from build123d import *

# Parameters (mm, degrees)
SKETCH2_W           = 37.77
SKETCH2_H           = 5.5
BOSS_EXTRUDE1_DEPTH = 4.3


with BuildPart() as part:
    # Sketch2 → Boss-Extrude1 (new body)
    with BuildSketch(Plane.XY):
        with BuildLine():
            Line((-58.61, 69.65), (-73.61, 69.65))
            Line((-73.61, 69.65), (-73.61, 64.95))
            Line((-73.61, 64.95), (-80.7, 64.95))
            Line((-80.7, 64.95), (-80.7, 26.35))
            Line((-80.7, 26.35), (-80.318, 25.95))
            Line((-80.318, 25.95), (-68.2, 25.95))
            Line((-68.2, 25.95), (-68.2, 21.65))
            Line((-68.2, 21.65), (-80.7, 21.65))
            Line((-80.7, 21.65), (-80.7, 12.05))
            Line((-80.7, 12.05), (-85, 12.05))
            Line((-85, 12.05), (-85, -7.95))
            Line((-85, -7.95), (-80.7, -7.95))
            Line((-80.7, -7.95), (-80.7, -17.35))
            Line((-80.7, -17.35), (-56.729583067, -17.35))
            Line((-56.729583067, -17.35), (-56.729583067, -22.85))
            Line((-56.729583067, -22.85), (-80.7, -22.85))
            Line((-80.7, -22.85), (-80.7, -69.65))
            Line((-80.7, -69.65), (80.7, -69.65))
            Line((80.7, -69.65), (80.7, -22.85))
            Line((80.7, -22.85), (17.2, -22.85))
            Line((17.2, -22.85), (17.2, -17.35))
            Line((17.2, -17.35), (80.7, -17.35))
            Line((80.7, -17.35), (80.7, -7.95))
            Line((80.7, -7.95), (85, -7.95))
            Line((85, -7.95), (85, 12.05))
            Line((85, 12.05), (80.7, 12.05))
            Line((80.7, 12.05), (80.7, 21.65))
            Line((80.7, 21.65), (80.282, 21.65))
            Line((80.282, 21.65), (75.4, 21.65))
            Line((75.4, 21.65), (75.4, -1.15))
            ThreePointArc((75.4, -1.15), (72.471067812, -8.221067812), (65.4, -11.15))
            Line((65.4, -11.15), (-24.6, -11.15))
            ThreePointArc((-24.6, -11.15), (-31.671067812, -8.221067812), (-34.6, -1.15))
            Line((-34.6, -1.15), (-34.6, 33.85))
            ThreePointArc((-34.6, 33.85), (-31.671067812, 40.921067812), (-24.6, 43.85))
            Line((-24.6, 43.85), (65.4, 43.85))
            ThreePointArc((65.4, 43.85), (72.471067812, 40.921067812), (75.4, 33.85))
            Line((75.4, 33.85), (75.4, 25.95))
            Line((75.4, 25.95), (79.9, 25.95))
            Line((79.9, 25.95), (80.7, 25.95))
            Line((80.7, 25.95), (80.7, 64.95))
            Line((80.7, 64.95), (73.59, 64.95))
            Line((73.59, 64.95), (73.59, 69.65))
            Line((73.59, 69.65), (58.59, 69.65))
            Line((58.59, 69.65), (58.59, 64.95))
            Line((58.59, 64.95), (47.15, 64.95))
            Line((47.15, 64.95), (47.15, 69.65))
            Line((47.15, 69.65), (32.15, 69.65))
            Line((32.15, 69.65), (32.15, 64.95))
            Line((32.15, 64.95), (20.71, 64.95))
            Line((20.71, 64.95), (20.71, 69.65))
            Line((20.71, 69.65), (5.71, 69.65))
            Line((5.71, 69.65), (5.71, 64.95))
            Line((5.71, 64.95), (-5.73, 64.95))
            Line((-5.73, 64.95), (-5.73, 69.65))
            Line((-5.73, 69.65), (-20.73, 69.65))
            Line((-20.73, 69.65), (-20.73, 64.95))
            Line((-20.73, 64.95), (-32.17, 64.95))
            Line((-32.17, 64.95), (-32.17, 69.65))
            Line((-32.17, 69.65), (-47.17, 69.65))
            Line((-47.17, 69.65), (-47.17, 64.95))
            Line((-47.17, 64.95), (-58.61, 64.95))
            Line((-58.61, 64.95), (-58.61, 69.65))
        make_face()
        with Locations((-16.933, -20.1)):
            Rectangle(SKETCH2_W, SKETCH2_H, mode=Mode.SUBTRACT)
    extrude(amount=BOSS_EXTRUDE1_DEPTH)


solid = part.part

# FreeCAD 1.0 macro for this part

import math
import FreeCAD as App
import Part
import Sketcher
Q = App.Units.Quantity

doc = App.newDocument("Part")
body = doc.addObject("PartDesign::Body", "Body")

# Sketch on XY plane
sketch1 = body.newObject("Sketcher::SketchObject", "Sketch")
sketch1.AttachmentSupport = (doc.getObject("XY_Plane"), [""])
sketch1.MapMode = "FlatFace"
sketch1.addGeometry([
    Part.LineSegment(App.Vector(-58.61, 69.65, 0), App.Vector(-73.61, 69.65, 0)),  # 0
    Part.LineSegment(App.Vector(-73.61, 69.65, 0), App.Vector(-73.61, 64.95, 0)),  # 1
    Part.LineSegment(App.Vector(-73.61, 64.95, 0), App.Vector(-80.7, 64.95, 0)),  # 2
    Part.LineSegment(App.Vector(-80.7, 64.95, 0), App.Vector(-80.7, 26.35, 0)),  # 3
    Part.LineSegment(App.Vector(-80.7, 26.35, 0), App.Vector(-80.318, 25.95, 0)),  # 4
    Part.LineSegment(App.Vector(-80.318, 25.95, 0), App.Vector(-68.2, 25.95, 0)),  # 5
    Part.LineSegment(App.Vector(-68.2, 25.95, 0), App.Vector(-68.2, 21.65, 0)),  # 6
    Part.LineSegment(App.Vector(-68.2, 21.65, 0), App.Vector(-80.7, 21.65, 0)),  # 7
    Part.LineSegment(App.Vector(-80.7, 21.65, 0), App.Vector(-80.7, 12.05, 0)),  # 8
    Part.LineSegment(App.Vector(-80.7, 12.05, 0), App.Vector(-85, 12.05, 0)),  # 9
    Part.LineSegment(App.Vector(-85, 12.05, 0), App.Vector(-85, -7.95, 0)),  # 10
    Part.LineSegment(App.Vector(-85, -7.95, 0), App.Vector(-80.7, -7.95, 0)),  # 11
    Part.LineSegment(App.Vector(-80.7, -7.95, 0), App.Vector(-80.7, -17.35, 0)),  # 12
    Part.LineSegment(App.Vector(-80.7, -17.35, 0), App.Vector(-56.729583, -17.35, 0)),  # 13
    Part.LineSegment(App.Vector(-56.729583, -17.35, 0), App.Vector(-56.729583, -22.85, 0)),  # 14
    Part.LineSegment(App.Vector(-56.729583, -22.85, 0), App.Vector(-80.7, -22.85, 0)),  # 15
    Part.LineSegment(App.Vector(-80.7, -22.85, 0), App.Vector(-80.7, -69.65, 0)),  # 16
    Part.LineSegment(App.Vector(-80.7, -69.65, 0), App.Vector(80.7, -69.65, 0)),  # 17
    Part.LineSegment(App.Vector(80.7, -69.65, 0), App.Vector(80.7, -22.85, 0)),  # 18
    Part.LineSegment(App.Vector(80.7, -22.85, 0), App.Vector(17.2, -22.85, 0)),  # 19
    Part.LineSegment(App.Vector(17.2, -22.85, 0), App.Vector(17.2, -17.35, 0)),  # 20
    Part.LineSegment(App.Vector(17.2, -17.35, 0), App.Vector(80.7, -17.35, 0)),  # 21
    Part.LineSegment(App.Vector(80.7, -17.35, 0), App.Vector(80.7, -7.95, 0)),  # 22
    Part.LineSegment(App.Vector(80.7, -7.95, 0), App.Vector(85, -7.95, 0)),  # 23
    Part.LineSegment(App.Vector(85, -7.95, 0), App.Vector(85, 12.05, 0)),  # 24
    Part.LineSegment(App.Vector(85, 12.05, 0), App.Vector(80.7, 12.05, 0)),  # 25
    Part.LineSegment(App.Vector(80.7, 12.05, 0), App.Vector(80.7, 21.65, 0)),  # 26
    Part.LineSegment(App.Vector(80.7, 21.65, 0), App.Vector(75.4, 21.65, 0)),  # 27
    Part.LineSegment(App.Vector(75.4, 21.65, 0), App.Vector(75.4, -1.15, 0)),  # 28
    Part.ArcOfCircle(Part.Circle(App.Vector(65.4, -1.15, 0), App.Vector(0, 0, 1), 10), math.radians(-90), math.radians(0)),  # 29
    Part.LineSegment(App.Vector(65.4, -11.15, 0), App.Vector(-24.6, -11.15, 0)),  # 30
    Part.ArcOfCircle(Part.Circle(App.Vector(-24.6, -1.15, 0), App.Vector(0, 0, 1), 10), math.radians(180), math.radians(270)),  # 31
    Part.LineSegment(App.Vector(-34.6, -1.15, 0), App.Vector(-34.6, 33.85, 0)),  # 32
    Part.ArcOfCircle(Part.Circle(App.Vector(-24.6, 33.85, 0), App.Vector(0, 0, 1), 10), math.radians(90), math.radians(180)),  # 33
    Part.LineSegment(App.Vector(-24.6, 43.85, 0), App.Vector(65.4, 43.85, 0)),  # 34
    Part.ArcOfCircle(Part.Circle(App.Vector(65.4, 33.85, 0), App.Vector(0, 0, 1), 10), math.radians(0), math.radians(90)),  # 35
    Part.LineSegment(App.Vector(75.4, 33.85, 0), App.Vector(75.4, 25.95, 0)),  # 36
    Part.LineSegment(App.Vector(75.4, 25.95, 0), App.Vector(80.7, 25.95, 0)),  # 37
    Part.LineSegment(App.Vector(80.7, 25.95, 0), App.Vector(80.7, 64.95, 0)),  # 38
    Part.LineSegment(App.Vector(80.7, 64.95, 0), App.Vector(73.59, 64.95, 0)),  # 39
    Part.LineSegment(App.Vector(73.59, 64.95, 0), App.Vector(73.59, 69.65, 0)),  # 40
    Part.LineSegment(App.Vector(73.59, 69.65, 0), App.Vector(58.59, 69.65, 0)),  # 41
    Part.LineSegment(App.Vector(58.59, 69.65, 0), App.Vector(58.59, 64.95, 0)),  # 42
    Part.LineSegment(App.Vector(58.59, 64.95, 0), App.Vector(47.15, 64.95, 0)),  # 43
    Part.LineSegment(App.Vector(47.15, 64.95, 0), App.Vector(47.15, 69.65, 0)),  # 44
    Part.LineSegment(App.Vector(47.15, 69.65, 0), App.Vector(32.15, 69.65, 0)),  # 45
    Part.LineSegment(App.Vector(32.15, 69.65, 0), App.Vector(32.15, 64.95, 0)),  # 46
    Part.LineSegment(App.Vector(32.15, 64.95, 0), App.Vector(20.71, 64.95, 0)),  # 47
    Part.LineSegment(App.Vector(20.71, 64.95, 0), App.Vector(20.71, 69.65, 0)),  # 48
    Part.LineSegment(App.Vector(20.71, 69.65, 0), App.Vector(5.71, 69.65, 0)),  # 49
    Part.LineSegment(App.Vector(5.71, 69.65, 0), App.Vector(5.71, 64.95, 0)),  # 50
    Part.LineSegment(App.Vector(5.71, 64.95, 0), App.Vector(-5.73, 64.95, 0)),  # 51
    Part.LineSegment(App.Vector(-5.73, 64.95, 0), App.Vector(-5.73, 69.65, 0)),  # 52
    Part.LineSegment(App.Vector(-5.73, 69.65, 0), App.Vector(-20.73, 69.65, 0)),  # 53
    Part.LineSegment(App.Vector(-20.73, 69.65, 0), App.Vector(-20.73, 64.95, 0)),  # 54
    Part.LineSegment(App.Vector(-20.73, 64.95, 0), App.Vector(-32.17, 64.95, 0)),  # 55
    Part.LineSegment(App.Vector(-32.17, 64.95, 0), App.Vector(-32.17, 69.65, 0)),  # 56
    Part.LineSegment(App.Vector(-32.17, 69.65, 0), App.Vector(-47.17, 69.65, 0)),  # 57
    Part.LineSegment(App.Vector(-47.17, 69.65, 0), App.Vector(-47.17, 64.95, 0)),  # 58
    Part.LineSegment(App.Vector(-47.17, 64.95, 0), App.Vector(-58.61, 64.95, 0)),  # 59
    Part.LineSegment(App.Vector(-58.61, 64.95, 0), App.Vector(-58.61, 69.65, 0)),  # 60
    Part.LineSegment(App.Vector(1.952, -22.85, 0), App.Vector(-35.818, -22.85, 0)),  # 61
    Part.LineSegment(App.Vector(-35.818, -22.85, 0), App.Vector(-35.818, -17.35, 0)),  # 62
    Part.LineSegment(App.Vector(-35.818, -17.35, 0), App.Vector(1.952, -17.35, 0)),  # 63
    Part.LineSegment(App.Vector(1.952, -17.35, 0), App.Vector(1.952, -22.85, 0)),  # 64
], False)
sketch1.addConstraint([
    Sketcher.Constraint("Coincident", 0, 2, 1, 1),
    Sketcher.Constraint("Coincident", 1, 2, 2, 1),
    Sketcher.Constraint("Coincident", 2, 2, 3, 1),
    Sketcher.Constraint("Coincident", 3, 2, 4, 1),
    Sketcher.Constraint("Coincident", 4, 2, 5, 1),
    Sketcher.Constraint("Coincident", 5, 2, 6, 1),
    Sketcher.Constraint("Coincident", 6, 2, 7, 1),
    Sketcher.Constraint("Coincident", 7, 2, 8, 1),
    Sketcher.Constraint("Coincident", 8, 2, 9, 1),
    Sketcher.Constraint("Coincident", 9, 2, 10, 1),
    Sketcher.Constraint("Coincident", 10, 2, 11, 1),
    Sketcher.Constraint("Coincident", 11, 2, 12, 1),
    Sketcher.Constraint("Coincident", 12, 2, 13, 1),
    Sketcher.Constraint("Coincident", 13, 2, 14, 1),
    Sketcher.Constraint("Coincident", 14, 2, 15, 1),
    Sketcher.Constraint("Coincident", 15, 2, 16, 1),
    Sketcher.Constraint("Coincident", 16, 2, 17, 1),
    Sketcher.Constraint("Coincident", 17, 2, 18, 1),
    Sketcher.Constraint("Coincident", 18, 2, 19, 1),
    Sketcher.Constraint("Coincident", 19, 2, 20, 1),
    Sketcher.Constraint("Coincident", 20, 2, 21, 1),
    Sketcher.Constraint("Coincident", 21, 2, 22, 1),
    Sketcher.Constraint("Coincident", 22, 2, 23, 1),
    Sketcher.Constraint("Coincident", 23, 2, 24, 1),
    Sketcher.Constraint("Coincident", 24, 2, 25, 1),
    Sketcher.Constraint("Coincident", 25, 2, 26, 1),
    Sketcher.Constraint("Coincident", 26, 2, 27, 1),
    Sketcher.Constraint("Coincident", 27, 2, 28, 1),
    Sketcher.Constraint("Tangent", 28, 2, 29, 2),
    Sketcher.Constraint("Tangent", 29, 1, 30, 1),
    Sketcher.Constraint("Tangent", 30, 2, 31, 2),
    Sketcher.Constraint("Tangent", 31, 1, 32, 1),
    Sketcher.Constraint("Tangent", 32, 2, 33, 2),
    Sketcher.Constraint("Tangent", 33, 1, 34, 1),
    Sketcher.Constraint("Tangent", 34, 2, 35, 2),
    Sketcher.Constraint("Tangent", 35, 1, 36, 1),
    Sketcher.Constraint("Coincident", 36, 2, 37, 1),
    Sketcher.Constraint("Coincident", 37, 2, 38, 1),
    Sketcher.Constraint("Coincident", 38, 2, 39, 1),
    Sketcher.Constraint("Coincident", 39, 2, 40, 1),
    Sketcher.Constraint("Coincident", 40, 2, 41, 1),
    Sketcher.Constraint("Coincident", 41, 2, 42, 1),
    Sketcher.Constraint("Coincident", 42, 2, 43, 1),
    Sketcher.Constraint("Coincident", 43, 2, 44, 1),
    Sketcher.Constraint("Coincident", 44, 2, 45, 1),
    Sketcher.Constraint("Coincident", 45, 2, 46, 1),
    Sketcher.Constraint("Coincident", 46, 2, 47, 1),
    Sketcher.Constraint("Coincident", 47, 2, 48, 1),
    Sketcher.Constraint("Coincident", 48, 2, 49, 1),
    Sketcher.Constraint("Coincident", 49, 2, 50, 1),
    Sketcher.Constraint("Coincident", 50, 2, 51, 1),
    Sketcher.Constraint("Coincident", 51, 2, 52, 1),
    Sketcher.Constraint("Coincident", 52, 2, 53, 1),
    Sketcher.Constraint("Coincident", 53, 2, 54, 1),
    Sketcher.Constraint("Coincident", 54, 2, 55, 1),
    Sketcher.Constraint("Coincident", 55, 2, 56, 1),
    Sketcher.Constraint("Coincident", 56, 2, 57, 1),
    Sketcher.Constraint("Coincident", 57, 2, 58, 1),
    Sketcher.Constraint("Coincident", 58, 2, 59, 1),
    Sketcher.Constraint("Coincident", 59, 2, 60, 1),
    Sketcher.Constraint("Coincident", 60, 2, 0, 1),
    Sketcher.Constraint("Coincident", 61, 2, 62, 1),
    Sketcher.Constraint("Coincident", 62, 2, 63, 1),
    Sketcher.Constraint("Coincident", 63, 2, 64, 1),
    Sketcher.Constraint("Coincident", 64, 2, 61, 1),
    Sketcher.Constraint("Horizontal", 0),
    Sketcher.Constraint("Vertical", 1),
    Sketcher.Constraint("Horizontal", 2),
    Sketcher.Constraint("Vertical", 3),
    Sketcher.Constraint("Horizontal", 5),
    Sketcher.Constraint("Vertical", 6),
    Sketcher.Constraint("Horizontal", 7),
    Sketcher.Constraint("Vertical", 8),
    Sketcher.Constraint("Horizontal", 9),
    Sketcher.Constraint("Vertical", 10),
    Sketcher.Constraint("Horizontal", 11),
    Sketcher.Constraint("Vertical", 12),
    Sketcher.Constraint("Horizontal", 13),
    Sketcher.Constraint("Vertical", 14),
    Sketcher.Constraint("Horizontal", 15),
    Sketcher.Constraint("Vertical", 16),
    Sketcher.Constraint("Horizontal", 17),
    Sketcher.Constraint("Vertical", 18),
    Sketcher.Constraint("Horizontal", 19),
    Sketcher.Constraint("Vertical", 20),
    Sketcher.Constraint("Horizontal", 21),
    Sketcher.Constraint("Vertical", 22),
    Sketcher.Constraint("Horizontal", 23),
    Sketcher.Constraint("Vertical", 24),
    Sketcher.Constraint("Horizontal", 25),
    Sketcher.Constraint("Vertical", 26),
    Sketcher.Constraint("Horizontal", 27),
    Sketcher.Constraint("Vertical", 28),
    Sketcher.Constraint("Horizontal", 30),
    Sketcher.Constraint("Vertical", 32),
    Sketcher.Constraint("Horizontal", 34),
    Sketcher.Constraint("Vertical", 36),
    Sketcher.Constraint("Horizontal", 37),
    Sketcher.Constraint("Vertical", 38),
    Sketcher.Constraint("Horizontal", 39),
    Sketcher.Constraint("Vertical", 40),
    Sketcher.Constraint("Horizontal", 41),
    Sketcher.Constraint("Vertical", 42),
    Sketcher.Constraint("Horizontal", 43),
    Sketcher.Constraint("Vertical", 44),
    Sketcher.Constraint("Horizontal", 45),
    Sketcher.Constraint("Vertical", 46),
    Sketcher.Constraint("Horizontal", 47),
    Sketcher.Constraint("Vertical", 48),
    Sketcher.Constraint("Horizontal", 49),
    Sketcher.Constraint("Vertical", 50),
    Sketcher.Constraint("Horizontal", 51),
    Sketcher.Constraint("Vertical", 52),
    Sketcher.Constraint("Horizontal", 53),
    Sketcher.Constraint("Vertical", 54),
    Sketcher.Constraint("Horizontal", 55),
    Sketcher.Constraint("Vertical", 56),
    Sketcher.Constraint("Horizontal", 57),
    Sketcher.Constraint("Vertical", 58),
    Sketcher.Constraint("Horizontal", 59),
    Sketcher.Constraint("Vertical", 60),
    Sketcher.Constraint("Horizontal", 61),
    Sketcher.Constraint("Vertical", 62),
    Sketcher.Constraint("Horizontal", 63),
    Sketcher.Constraint("Vertical", 64),
    Sketcher.Constraint("Equal", 29, 31),
    Sketcher.Constraint("Equal", 31, 33),
    Sketcher.Constraint("Equal", 33, 35),
    Sketcher.Constraint("Symmetric", 15, 2, 18, 2, -2),
    Sketcher.Constraint("Symmetric", 12, 2, 21, 2, -2),
    Sketcher.Constraint("Symmetric", 10, 2, 23, 2, -2),
    Sketcher.Constraint("Symmetric", 8, 2, 25, 2, -2),
    Sketcher.Constraint("Symmetric", 2, 2, 38, 2, -2),
    Sketcher.Constraint("Horizontal", 7, 2, 26, 2),
    Sketcher.Constraint("Horizontal", 5, 2, 36, 2),
    Sketcher.Constraint("Horizontal", 0, 2, 40, 2),
    Sketcher.Constraint("Horizontal", 39, 2, 42, 2),
    Sketcher.Constraint("Horizontal", 41, 2, 44, 2),
    Sketcher.Constraint("Horizontal", 43, 2, 46, 2),
    Sketcher.Constraint("Horizontal", 45, 2, 48, 2),
    Sketcher.Constraint("Horizontal", 47, 2, 50, 2),
    Sketcher.Constraint("Horizontal", 49, 2, 52, 2),
    Sketcher.Constraint("Horizontal", 51, 2, 54, 2),
    Sketcher.Constraint("Horizontal", 53, 2, 56, 2),
    Sketcher.Constraint("Horizontal", 55, 2, 58, 2),
    Sketcher.Constraint("Horizontal", 19, 2, 61, 2),
    Sketcher.Constraint("Horizontal", 21, 2, 62, 2),
    Sketcher.Constraint("Vertical", 29, 3, 35, 3),
    Sketcher.Constraint("Vertical", 3, 2, 7, 2),
    Sketcher.Constraint("Vertical", 8, 2, 11, 2),
    Sketcher.Constraint("Vertical", 12, 2, 15, 2),
    Sketcher.Constraint("Equal", 0, 41),
    Sketcher.Constraint("Equal", 41, 45),
    Sketcher.Constraint("Equal", 43, 47),
    Sketcher.Constraint("Equal", 45, 49),
    Sketcher.Constraint("Equal", 47, 51),
    Sketcher.Constraint("Equal", 49, 53),
    Sketcher.Constraint("Equal", 51, 55),
    Sketcher.Constraint("Equal", 53, 57),
    Sketcher.Constraint("Equal", 55, 59),
    Sketcher.Constraint("Equal", 25, 6),
    Sketcher.Constraint("Radius", 29, Q("10 mm")),
    Sketcher.Constraint("DistanceX", 0, 2, 0, 1, Q("15 mm")),
    Sketcher.Constraint("DistanceX", 30, 2, 30, 1, Q("90 mm")),
    Sketcher.Constraint("DistanceY", 10, 2, 10, 1, Q("20 mm")),
    Sketcher.Constraint("DistanceY", 32, 1, 32, 2, Q("35 mm")),
    Sketcher.Constraint("DistanceY", 38, 1, 38, 2, Q("39 mm")),
    Sketcher.Constraint("DistanceX", 7, 2, 7, 1, Q("12.5 mm")),
    Sketcher.Constraint("DistanceX", 9, 2, 9, 1, Q("4.3 mm")),
    Sketcher.Constraint("DistanceX", 17, 1, 17, 2, Q("161.4 mm")),
    Sketcher.Constraint("DistanceX", 19, 2, 19, 1, Q("63.5 mm")),
    Sketcher.Constraint("DistanceX", 27, 2, 27, 1, Q("5.3 mm")),
    Sketcher.Constraint("DistanceY", 1, 2, 1, 1, Q("4.7 mm")),
    Sketcher.Constraint("DistanceY", 3, 2, 3, 1, Q("38.6 mm")),
    Sketcher.Constraint("DistanceY", 8, 2, 8, 1, Q("9.6 mm")),
    Sketcher.Constraint("DistanceY", 12, 2, 12, 1, Q("9.4 mm")),
    Sketcher.Constraint("DistanceY", 14, 2, 14, 1, Q("5.5 mm")),
    Sketcher.Constraint("DistanceY", 16, 2, 16, 1, Q("46.8 mm")),
    Sketcher.Constraint("DistanceY", 28, 2, 28, 1, Q("22.8 mm")),
    Sketcher.Constraint("DistanceX", 2, 2, 2, 1, Q("7.09 mm")),
    Sketcher.Constraint("DistanceX", 39, 2, 39, 1, Q("7.11 mm")),
    Sketcher.Constraint("DistanceX", 61, 2, 61, 1, Q("37.77 mm")),
    Sketcher.Constraint("DistanceX", 5, 1, 5, 2, Q("12.118 mm")),
    Sketcher.Constraint("DistanceY", 29, 3, -1, 1, Q("1.15 mm")),
    Sketcher.Constraint("DistanceX", 61, 2, -1, 1, Q("35.818 mm")),
    Sketcher.Constraint("DistanceX", 13, 1, 13, 2, Q("23.970417 mm")),
])
pad1 = body.newObject("PartDesign::Pad", "Pad")
pad1.Profile = sketch1
pad1.Length = 4.3

doc.recompute()
